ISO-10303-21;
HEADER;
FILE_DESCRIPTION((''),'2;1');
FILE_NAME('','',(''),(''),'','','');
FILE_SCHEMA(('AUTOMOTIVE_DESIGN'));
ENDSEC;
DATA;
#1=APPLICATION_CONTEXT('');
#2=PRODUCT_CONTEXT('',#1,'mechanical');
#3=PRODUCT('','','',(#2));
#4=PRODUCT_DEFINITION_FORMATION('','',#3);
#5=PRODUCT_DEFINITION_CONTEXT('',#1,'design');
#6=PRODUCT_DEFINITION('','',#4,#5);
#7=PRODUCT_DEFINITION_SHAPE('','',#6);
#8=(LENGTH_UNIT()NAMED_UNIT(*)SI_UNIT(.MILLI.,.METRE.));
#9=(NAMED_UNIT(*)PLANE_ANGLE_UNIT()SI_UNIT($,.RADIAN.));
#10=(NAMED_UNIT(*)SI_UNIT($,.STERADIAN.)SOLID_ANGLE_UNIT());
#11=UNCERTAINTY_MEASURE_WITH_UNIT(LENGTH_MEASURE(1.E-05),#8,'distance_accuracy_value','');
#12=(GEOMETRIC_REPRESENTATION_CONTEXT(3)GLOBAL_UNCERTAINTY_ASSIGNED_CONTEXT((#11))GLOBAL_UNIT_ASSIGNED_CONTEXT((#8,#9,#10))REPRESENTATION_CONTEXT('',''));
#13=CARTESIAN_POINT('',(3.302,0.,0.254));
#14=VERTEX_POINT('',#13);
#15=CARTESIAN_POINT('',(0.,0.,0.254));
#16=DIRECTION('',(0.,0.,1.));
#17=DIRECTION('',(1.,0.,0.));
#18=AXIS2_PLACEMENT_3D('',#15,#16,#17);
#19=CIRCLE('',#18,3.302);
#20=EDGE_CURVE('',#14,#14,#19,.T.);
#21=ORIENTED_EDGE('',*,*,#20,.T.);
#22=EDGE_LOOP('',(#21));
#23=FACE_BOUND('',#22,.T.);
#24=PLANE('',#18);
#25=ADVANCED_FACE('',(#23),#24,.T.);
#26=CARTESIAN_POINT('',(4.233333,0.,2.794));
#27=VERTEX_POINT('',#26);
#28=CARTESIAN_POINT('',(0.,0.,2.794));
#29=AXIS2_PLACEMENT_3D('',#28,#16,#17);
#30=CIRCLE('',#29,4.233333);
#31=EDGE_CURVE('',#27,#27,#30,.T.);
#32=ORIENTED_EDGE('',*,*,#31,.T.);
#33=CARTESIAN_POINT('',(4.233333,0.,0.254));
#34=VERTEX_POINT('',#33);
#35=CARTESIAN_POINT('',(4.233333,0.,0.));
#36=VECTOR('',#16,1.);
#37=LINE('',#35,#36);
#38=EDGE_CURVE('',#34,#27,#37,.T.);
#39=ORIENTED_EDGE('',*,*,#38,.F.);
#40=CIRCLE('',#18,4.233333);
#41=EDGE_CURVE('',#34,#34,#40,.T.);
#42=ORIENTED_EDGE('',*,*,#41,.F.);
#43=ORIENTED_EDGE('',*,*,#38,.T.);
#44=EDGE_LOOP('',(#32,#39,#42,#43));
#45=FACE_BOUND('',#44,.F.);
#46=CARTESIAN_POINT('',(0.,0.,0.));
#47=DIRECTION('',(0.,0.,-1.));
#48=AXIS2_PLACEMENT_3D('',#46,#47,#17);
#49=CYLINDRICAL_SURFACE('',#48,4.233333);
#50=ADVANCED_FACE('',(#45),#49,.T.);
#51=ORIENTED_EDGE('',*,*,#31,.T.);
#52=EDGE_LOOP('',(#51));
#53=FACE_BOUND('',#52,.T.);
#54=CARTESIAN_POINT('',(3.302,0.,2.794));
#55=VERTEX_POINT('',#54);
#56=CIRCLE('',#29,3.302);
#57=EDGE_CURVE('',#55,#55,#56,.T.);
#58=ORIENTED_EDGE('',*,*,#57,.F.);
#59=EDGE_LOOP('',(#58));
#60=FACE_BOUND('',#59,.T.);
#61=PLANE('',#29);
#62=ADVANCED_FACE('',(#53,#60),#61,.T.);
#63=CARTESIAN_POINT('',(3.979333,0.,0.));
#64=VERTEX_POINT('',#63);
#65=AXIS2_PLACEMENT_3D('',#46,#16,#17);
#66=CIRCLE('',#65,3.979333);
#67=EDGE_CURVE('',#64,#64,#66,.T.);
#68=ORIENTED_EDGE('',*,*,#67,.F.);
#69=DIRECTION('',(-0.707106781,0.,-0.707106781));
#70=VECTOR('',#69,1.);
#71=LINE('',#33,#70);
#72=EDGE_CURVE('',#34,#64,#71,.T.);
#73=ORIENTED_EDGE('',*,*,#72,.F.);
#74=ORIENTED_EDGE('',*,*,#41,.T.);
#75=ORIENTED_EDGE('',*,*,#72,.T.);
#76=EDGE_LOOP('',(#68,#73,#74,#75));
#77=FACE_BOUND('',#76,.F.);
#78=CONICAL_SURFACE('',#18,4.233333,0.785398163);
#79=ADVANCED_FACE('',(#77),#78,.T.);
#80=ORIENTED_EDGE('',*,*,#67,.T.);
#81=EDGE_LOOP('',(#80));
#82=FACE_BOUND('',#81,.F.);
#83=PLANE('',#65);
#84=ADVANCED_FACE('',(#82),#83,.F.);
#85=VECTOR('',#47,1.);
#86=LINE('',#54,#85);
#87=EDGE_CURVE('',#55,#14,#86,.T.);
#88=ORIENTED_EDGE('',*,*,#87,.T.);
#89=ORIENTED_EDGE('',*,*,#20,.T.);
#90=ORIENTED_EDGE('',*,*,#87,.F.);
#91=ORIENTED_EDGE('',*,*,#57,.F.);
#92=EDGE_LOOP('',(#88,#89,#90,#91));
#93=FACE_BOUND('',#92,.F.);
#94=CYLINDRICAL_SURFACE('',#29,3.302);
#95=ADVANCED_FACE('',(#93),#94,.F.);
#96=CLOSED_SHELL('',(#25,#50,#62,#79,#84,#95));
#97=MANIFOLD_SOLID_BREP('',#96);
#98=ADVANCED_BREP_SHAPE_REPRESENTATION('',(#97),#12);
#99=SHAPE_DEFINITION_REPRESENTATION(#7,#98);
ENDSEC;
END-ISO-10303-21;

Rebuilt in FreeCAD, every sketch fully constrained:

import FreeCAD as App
import Part
import Sketcher

V = App.Vector
Q = App.Units.Quantity


def edges_at(feature, points):
    """Names of the edges that pass closest to the given points."""
    edges = feature.Shape.Edges
    near = lambda p: min(range(len(edges)), key=lambda i: edges[i].distToShape(Part.Vertex(*p))[0])
    return sorted({f"Edge{near(p) + 1}" for p in points})

doc = App.newDocument("Part")
body = doc.addObject("PartDesign::Body", "Body")

# Sketch on XY plane
sketch1 = body.newObject("Sketcher::SketchObject", "Sketch")
sketch1.AttachmentSupport = (doc.getObject("XY_Plane"), [""])
sketch1.MapMode = "FlatFace"
sketch1.addGeometry(Part.Circle(V(0, 0, 0), V(0, 0, 1), 4.233333), False)
sketch1.addConstraint([
    Sketcher.Constraint("Coincident", 0, 3, -1, 1),
    Sketcher.Constraint("Diameter", 0, 8.466666),
])
pad1 = body.newObject("PartDesign::Pad", "Pad")
pad1.Profile = sketch1
pad1.Length = Q("0.11 in")

# Sketch on XY plane
sketch2 = body.newObject("Sketcher::SketchObject", "Sketch001")
sketch2.AttachmentSupport = (doc.getObject("XY_Plane"), [""])
sketch2.MapMode = "FlatFace"
sketch2.AttachmentOffset = App.Placement(V(0, 0, 0.11 * 25.4), App.Rotation())
sketch2.addGeometry(Part.Circle(V(0, 0, 0), V(0, 0, 1), 3.302), False)
sketch2.addConstraint([
    Sketcher.Constraint("Coincident", 0, 3, -1, 1),
    Sketcher.Constraint("Diameter", 0, Q("0.26 in")),
])
pocket1 = body.newObject("PartDesign::Pocket", "Pocket")
pocket1.Profile = sketch2
pocket1.Length = Q("0.1 in")
doc.recompute()

chamfer = body.newObject("PartDesign::Chamfer", "Chamfer")
chamfer.Base = (pocket1, edges_at(pocket1, [(-4.233, 0, 0)]))
chamfer.Size = Q("0.01 in")

doc.recompute()
